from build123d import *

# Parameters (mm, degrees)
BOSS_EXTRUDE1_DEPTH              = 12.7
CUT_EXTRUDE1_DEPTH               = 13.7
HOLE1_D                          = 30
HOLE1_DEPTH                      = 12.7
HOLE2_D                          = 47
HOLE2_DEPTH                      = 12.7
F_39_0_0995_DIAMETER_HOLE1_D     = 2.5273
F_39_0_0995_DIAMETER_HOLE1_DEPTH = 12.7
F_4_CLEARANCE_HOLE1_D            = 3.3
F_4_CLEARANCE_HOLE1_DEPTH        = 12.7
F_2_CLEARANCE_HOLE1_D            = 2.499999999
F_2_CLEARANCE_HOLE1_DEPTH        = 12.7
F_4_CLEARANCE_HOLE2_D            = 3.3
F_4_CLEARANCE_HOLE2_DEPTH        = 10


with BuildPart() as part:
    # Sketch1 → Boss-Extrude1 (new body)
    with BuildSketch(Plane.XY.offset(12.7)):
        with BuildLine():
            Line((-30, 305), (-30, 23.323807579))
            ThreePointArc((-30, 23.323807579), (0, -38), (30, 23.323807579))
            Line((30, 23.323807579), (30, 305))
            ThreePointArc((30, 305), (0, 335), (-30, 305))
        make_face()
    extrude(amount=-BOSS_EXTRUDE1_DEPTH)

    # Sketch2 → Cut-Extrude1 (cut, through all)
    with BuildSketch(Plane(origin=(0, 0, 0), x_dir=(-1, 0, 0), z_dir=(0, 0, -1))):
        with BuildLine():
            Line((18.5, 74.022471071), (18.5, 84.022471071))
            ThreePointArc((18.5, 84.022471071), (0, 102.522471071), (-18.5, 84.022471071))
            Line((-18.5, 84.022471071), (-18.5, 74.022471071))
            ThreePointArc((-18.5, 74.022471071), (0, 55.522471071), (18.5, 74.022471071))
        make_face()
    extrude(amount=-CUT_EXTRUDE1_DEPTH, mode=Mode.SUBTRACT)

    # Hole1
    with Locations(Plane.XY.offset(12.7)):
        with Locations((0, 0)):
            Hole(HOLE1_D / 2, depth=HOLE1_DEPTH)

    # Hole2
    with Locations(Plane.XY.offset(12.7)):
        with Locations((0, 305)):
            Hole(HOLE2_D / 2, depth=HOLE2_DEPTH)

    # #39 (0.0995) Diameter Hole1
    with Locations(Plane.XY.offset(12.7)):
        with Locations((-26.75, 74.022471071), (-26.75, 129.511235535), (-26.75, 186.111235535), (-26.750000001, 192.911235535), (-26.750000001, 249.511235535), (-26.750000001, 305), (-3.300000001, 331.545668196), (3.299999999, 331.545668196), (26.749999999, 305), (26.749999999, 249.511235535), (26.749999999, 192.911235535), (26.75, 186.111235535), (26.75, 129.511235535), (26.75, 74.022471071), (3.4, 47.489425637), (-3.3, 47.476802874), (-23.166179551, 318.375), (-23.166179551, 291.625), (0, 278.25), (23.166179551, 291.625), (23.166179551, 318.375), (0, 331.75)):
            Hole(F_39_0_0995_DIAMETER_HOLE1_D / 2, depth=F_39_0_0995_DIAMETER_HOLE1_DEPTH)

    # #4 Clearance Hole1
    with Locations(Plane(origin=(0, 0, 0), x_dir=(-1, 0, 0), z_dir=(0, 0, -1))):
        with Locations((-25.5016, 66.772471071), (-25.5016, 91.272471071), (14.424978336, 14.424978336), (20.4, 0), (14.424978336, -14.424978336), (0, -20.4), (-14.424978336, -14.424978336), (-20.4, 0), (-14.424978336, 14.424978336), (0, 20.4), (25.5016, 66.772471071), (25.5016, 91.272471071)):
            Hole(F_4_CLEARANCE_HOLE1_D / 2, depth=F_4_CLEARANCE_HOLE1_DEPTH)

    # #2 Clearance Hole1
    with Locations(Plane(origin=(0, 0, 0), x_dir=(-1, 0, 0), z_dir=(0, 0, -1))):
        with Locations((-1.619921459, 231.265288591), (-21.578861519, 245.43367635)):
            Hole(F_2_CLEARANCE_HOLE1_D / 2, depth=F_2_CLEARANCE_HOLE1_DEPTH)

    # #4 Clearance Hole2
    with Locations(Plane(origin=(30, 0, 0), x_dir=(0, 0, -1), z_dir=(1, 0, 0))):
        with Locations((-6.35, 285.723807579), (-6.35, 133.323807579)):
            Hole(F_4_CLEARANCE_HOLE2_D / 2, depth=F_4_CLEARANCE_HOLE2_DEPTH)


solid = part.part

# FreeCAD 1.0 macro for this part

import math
import FreeCAD as App
import Part
import Sketcher

V = App.Vector

doc = App.newDocument("Part")
body = doc.addObject("PartDesign::Body", "Body")

# Sketch on XY plane
sketch1 = doc.addObject("Sketcher::SketchObject", "Sketch")
body.addObject(sketch1)
sketch1.AttachmentSupport = (doc.XY_Plane, [""])
sketch1.MapMode = "FlatFace"
sketch1.AttachmentOffset = App.Placement(V(0, 0, 12.7), App.Rotation())
sketch1.addGeometry(Part.LineSegment(V(-30, 305, 0), V(-30, 23, 0)), False)
sketch1.addGeometry(Part.ArcOfCircle(Part.Circle(V(0, 0, 0), V(0, 0, 1), 38), math.radians(142), math.radians(398)), False)
sketch1.addGeometry(Part.LineSegment(V(30, 23, 0), V(30, 305, 0)), False)
sketch1.addGeometry(Part.ArcOfCircle(Part.Circle(V(0, 305, 0), V(0, 0, 1), 30), math.radians(0), math.radians(180)), False)
sketch1.addConstraint(Sketcher.Constraint("Coincident", 0, 2, 1, 1))
sketch1.addConstraint(Sketcher.Constraint("Coincident", 1, 2, 2, 1))
sketch1.addConstraint(Sketcher.Constraint("Tangent", 2, 2, 3, 1))
sketch1.addConstraint(Sketcher.Constraint("Tangent", 3, 2, 0, 1))
sketch1.addConstraint(Sketcher.Constraint("Vertical", 0))
sketch1.addConstraint(Sketcher.Constraint("Vertical", 2))
sketch1.addConstraint(Sketcher.Constraint("Coincident", 1, 3, -1, 1))
sketch1.addConstraint(Sketcher.Constraint("PointOnObject", 3, 3, -2))
sketch1.addConstraint(Sketcher.Constraint("Radius", 1, 38.0))
sketch1.addConstraint(Sketcher.Constraint("Radius", 3, 30.0))
sketch1.addConstraint(Sketcher.Constraint("DistanceY", -1, 1, 3, 3, 305.0))
pad1 = doc.addObject("PartDesign::Pad", "Pad")
body.addObject(pad1)
pad1.Profile = sketch1
pad1.Length = 12.7
pad1.Reversed = True

# Sketch on XY plane
sketch2 = doc.addObject("Sketcher::SketchObject", "Sketch001")
body.addObject(sketch2)
sketch2.AttachmentSupport = (doc.XY_Plane, [""])
sketch2.MapMode = "FlatFace"
sketch2.addGeometry(Part.LineSegment(V(-18, 74, 0), V(-18, 84, 0)), False)
sketch2.addGeometry(Part.ArcOfCircle(Part.Circle(V(0, 84, 0), V(0, 0, 1), 18), math.radians(0), math.radians(180)), False)
sketch2.addGeometry(Part.LineSegment(V(18, 84, 0), V(18, 74, 0)), False)
sketch2.addGeometry(Part.ArcOfCircle(Part.Circle(V(0, 74, 0), V(0, 0, 1), 18), math.radians(180), math.radians(360)), False)
sketch2.addConstraint(Sketcher.Constraint("Tangent", 0, 2, 1, 2))
sketch2.addConstraint(Sketcher.Constraint("Tangent", 1, 1, 2, 1))
sketch2.addConstraint(Sketcher.Constraint("Tangent", 2, 2, 3, 2))
sketch2.addConstraint(Sketcher.Constraint("Tangent", 3, 1, 0, 1))
sketch2.addConstraint(Sketcher.Constraint("Vertical", 0))
sketch2.addConstraint(Sketcher.Constraint("Vertical", 2))
sketch2.addConstraint(Sketcher.Constraint("PointOnObject", 1, 3, -2))
sketch2.addConstraint(Sketcher.Constraint("Radius", 1, 18.5))
sketch2.addConstraint(Sketcher.Constraint("DistanceY", 0, 1, 0, 2, 10.0))
sketch2.addConstraint(Sketcher.Constraint("DistanceY", -1, 1, 1, 3, 84.022471))
pocket1 = doc.addObject("PartDesign::Pocket", "Pocket")
body.addObject(pocket1)
pocket1.Profile = sketch2
pocket1.Type = "ThroughAll"
pocket1.Reversed = True

# Sketch on XY plane
sketch3 = doc.addObject("Sketcher::SketchObject", "Sketch002")
body.addObject(sketch3)
sketch3.AttachmentSupport = (doc.XY_Plane, [""])
sketch3.MapMode = "FlatFace"
sketch3.AttachmentOffset = App.Placement(V(0, 0, 12.7), App.Rotation())
sketch3.addGeometry(Part.Circle(V(0, 0, 0), V(0, 0, 1), 15), False)
sketch3.addConstraint(Sketcher.Constraint("Coincident", 0, 3, -1, 1))
sketch3.addConstraint(Sketcher.Constraint("Diameter", 0, 30.0))
doc.recompute()
hole = doc.addObject("PartDesign::Hole", "Hole")
body.addObject(hole)
hole.Profile = sketch3
hole.ThreadType = "None"
hole.Diameter = 30
hole.DepthType = "Dimension"
hole.Depth = 12.7
hole.DrillPoint = "Flat"

# Sketch on XY plane
sketch4 = doc.addObject("Sketcher::SketchObject", "Sketch003")
body.addObject(sketch4)
sketch4.AttachmentSupport = (doc.XY_Plane, [""])
sketch4.MapMode = "FlatFace"
sketch4.AttachmentOffset = App.Placement(V(0, 0, 12.7), App.Rotation())
sketch4.addGeometry(Part.Circle(V(0, 305, 0), V(0, 0, 1), 24), False)
sketch4.addConstraint(Sketcher.Constraint("PointOnObject", 0, 3, -2))
sketch4.addConstraint(Sketcher.Constraint("Diameter", 0, 47.0))
sketch4.addConstraint(Sketcher.Constraint("DistanceY", -1, 1, 0, 3, 305.0))
doc.recompute()
hole2 = doc.addObject("PartDesign::Hole", "Hole001")
body.addObject(hole2)
hole2.Profile = sketch4
hole2.ThreadType = "None"
hole2.Diameter = 47
hole2.DepthType = "Dimension"
hole2.Depth = 12.7
hole2.DrillPoint = "Flat"

# Sketch on XY plane
sketch5 = doc.addObject("Sketcher::SketchObject", "Sketch004")
body.addObject(sketch5)
sketch5.AttachmentSupport = (doc.XY_Plane, [""])
sketch5.MapMode = "FlatFace"
sketch5.AttachmentOffset = App.Placement(V(0, 0, 12.7), App.Rotation())
sketch5.addGeometry(Part.Circle(V(-26.8, 74, 0), V(0, 0, 1), 1.3), False)
sketch5.addGeometry(Part.Circle(V(-26.8, 129.5, 0), V(0, 0, 1), 1.3), False)
sketch5.addGeometry(Part.Circle(V(-26.8, 186.1, 0), V(0, 0, 1), 1.3), False)
sketch5.addGeometry(Part.Circle(V(-26.8, 192.9, 0), V(0, 0, 1), 1.3), False)
sketch5.addGeometry(Part.Circle(V(-26.8, 249.5, 0), V(0, 0, 1), 1.3), False)
sketch5.addGeometry(Part.Circle(V(-26.8, 305, 0), V(0, 0, 1), 1.3), False)
sketch5.addGeometry(Part.Circle(V(-3.3, 331.5, 0), V(0, 0, 1), 1.3), False)
sketch5.addGeometry(Part.Circle(V(3.3, 331.5, 0), V(0, 0, 1), 1.3), False)
sketch5.addGeometry(Part.Circle(V(26.7, 305, 0), V(0, 0, 1), 1.3), False)
sketch5.addGeometry(Part.Circle(V(26.7, 249.5, 0), V(0, 0, 1), 1.3), False)
sketch5.addGeometry(Part.Circle(V(26.7, 192.9, 0), V(0, 0, 1), 1.3), False)
sketch5.addGeometry(Part.Circle(V(26.8, 186.1, 0), V(0, 0, 1), 1.3), False)
sketch5.addGeometry(Part.Circle(V(26.8, 129.5, 0), V(0, 0, 1), 1.3), False)
sketch5.addGeometry(Part.Circle(V(26.8, 74, 0), V(0, 0, 1), 1.3), False)
sketch5.addGeometry(Part.Circle(V(3.4, 47.5, 0), V(0, 0, 1), 1.3), False)
sketch5.addGeometry(Part.Circle(V(-3.3, 47.5, 0), V(0, 0, 1), 1.3), False)
sketch5.addGeometry(Part.Circle(V(-23.2, 318.4, 0), V(0, 0, 1), 1.3), False)
sketch5.addGeometry(Part.Circle(V(-23.2, 291.6, 0), V(0, 0, 1), 1.3), False)
sketch5.addGeometry(Part.Circle(V(0, 278.2, 0), V(0, 0, 1), 1.3), False)
sketch5.addGeometry(Part.Circle(V(23.2, 291.6, 0), V(0, 0, 1), 1.3), False)
sketch5.addGeometry(Part.Circle(V(23.2, 318.4, 0), V(0, 0, 1), 1.3), False)
sketch5.addGeometry(Part.Circle(V(0, 331.8, 0), V(0, 0, 1), 1.3), False)
sketch5.addConstraint(Sketcher.Constraint("Equal", 0, 1))
sketch5.addConstraint(Sketcher.Constraint("Equal", 1, 2))
sketch5.addConstraint(Sketcher.Constraint("Equal", 2, 3))
sketch5.addConstraint(Sketcher.Constraint("Equal", 3, 4))
sketch5.addConstraint(Sketcher.Constraint("Equal", 4, 5))
sketch5.addConstraint(Sketcher.Constraint("Equal", 5, 6))
sketch5.addConstraint(Sketcher.Constraint("Equal", 6, 7))
sketch5.addConstraint(Sketcher.Constraint("Equal", 7, 8))
sketch5.addConstraint(Sketcher.Constraint("Equal", 8, 9))
sketch5.addConstraint(Sketcher.Constraint("Equal", 9, 10))
sketch5.addConstraint(Sketcher.Constraint("Equal", 10, 11))
sketch5.addConstraint(Sketcher.Constraint("Equal", 11, 12))
sketch5.addConstraint(Sketcher.Constraint("Equal", 12, 13))
sketch5.addConstraint(Sketcher.Constraint("Equal", 13, 14))
sketch5.addConstraint(Sketcher.Constraint("Equal", 14, 15))
sketch5.addConstraint(Sketcher.Constraint("Equal", 15, 16))
sketch5.addConstraint(Sketcher.Constraint("Equal", 16, 17))
sketch5.addConstraint(Sketcher.Constraint("Equal", 17, 18))
sketch5.addConstraint(Sketcher.Constraint("Equal", 18, 19))
sketch5.addConstraint(Sketcher.Constraint("Equal", 19, 20))
sketch5.addConstraint(Sketcher.Constraint("Equal", 20, 21))
sketch5.addConstraint(Sketcher.Constraint("Symmetric", 6, 3, 7, 3, -2))
sketch5.addConstraint(Sketcher.Constraint("Symmetric", 5, 3, 8, 3, -2))
sketch5.addConstraint(Sketcher.Constraint("Symmetric", 4, 3, 9, 3, -2))
sketch5.addConstraint(Sketcher.Constraint("Symmetric", 3, 3, 10, 3, -2))
sketch5.addConstraint(Sketcher.Constraint("Symmetric", 2, 3, 11, 3, -2))
sketch5.addConstraint(Sketcher.Constraint("Symmetric", 1, 3, 12, 3, -2))
sketch5.addConstraint(Sketcher.Constraint("Symmetric", 0, 3, 13, 3, -2))
sketch5.addConstraint(Sketcher.Constraint("Symmetric", 17, 3, 19, 3, -2))
sketch5.addConstraint(Sketcher.Constraint("Symmetric", 16, 3, 20, 3, -2))
sketch5.addConstraint(Sketcher.Constraint("PointOnObject", 18, 3, -2))
sketch5.addConstraint(Sketcher.Constraint("PointOnObject", 21, 3, -2))
sketch5.addConstraint(Sketcher.Constraint("Vertical", 0, 3, 1, 3))
sketch5.addConstraint(Sketcher.Constraint("Vertical", 1, 3, 2, 3))
sketch5.addConstraint(Sketcher.Constraint("Vertical", 2, 3, 3, 3))
sketch5.addConstraint(Sketcher.Constraint("Vertical", 3, 3, 4, 3))
sketch5.addConstraint(Sketcher.Constraint("Vertical", 4, 3, 5, 3))
sketch5.addConstraint(Sketcher.Constraint("Vertical", 6, 3, 15, 3))
sketch5.addConstraint(Sketcher.Constraint("Vertical", 16, 3, 17, 3))
sketch5.addConstraint(Sketcher.Constraint("DistanceY", -1, 1, 5, 3, 305.0))
sketch5.addConstraint(Sketcher.Constraint("DistanceY", 1, 3, 4, 3, 120.0))
sketch5.addConstraint(Sketcher.Constraint("Diameter", 0, 2.5273))
sketch5.addConstraint(Sketcher.Constraint("DistanceX", 6, 3, -1, 1, 3.3))
sketch5.addConstraint(Sketcher.Constraint("DistanceX", -1, 1, 14, 3, 3.4))
sketch5.addConstraint(Sketcher.Constraint("DistanceY", 1, 3, 2, 3, 56.6))
sketch5.addConstraint(Sketcher.Constraint("DistanceY", 2, 3, 3, 3, 6.8))
sketch5.addConstraint(Sketcher.Constraint("DistanceX", 5, 3, 8, 3, 53.5))
sketch5.addConstraint(Sketcher.Constraint("DistanceY", -1, 1, 18, 3, 278.25))
sketch5.addConstraint(Sketcher.Constraint("DistanceY", -1, 1, 21, 3, 331.75))
sketch5.addConstraint(Sketcher.Constraint("DistanceY", 17, 3, 16, 3, 26.75))
sketch5.addConstraint(Sketcher.Constraint("DistanceY", -1, 1, 16, 3, 318.375))
sketch5.addConstraint(Sketcher.Constraint("DistanceY", -1, 1, 0, 3, 74.022471))
sketch5.addConstraint(Sketcher.Constraint("DistanceY", -1, 1, 6, 3, 331.545668))
sketch5.addConstraint(Sketcher.Constraint("DistanceX", 16, 3, -1, 1, 23.16618))
sketch5.addConstraint(Sketcher.Constraint("DistanceY", 14, 3, 12, 3, 82.02181))
sketch5.addConstraint(Sketcher.Constraint("DistanceY", 15, 3, 0, 3, 26.545668))
sketch5.addConstraint(Sketcher.Constraint("DistanceY", -1, 1, 1, 3, 129.511236))
doc.recompute()
hole3 = doc.addObject("PartDesign::Hole", "Hole002")
body.addObject(hole3)
hole3.Profile = sketch5
hole3.ThreadType = "None"
hole3.Diameter = 2.5273
hole3.DepthType = "Dimension"
hole3.Depth = 12.7
hole3.DrillPoint = "Flat"

# Sketch on XY plane
sketch6 = doc.addObject("Sketcher::SketchObject", "Sketch005")
body.addObject(sketch6)
sketch6.AttachmentSupport = (doc.XY_Plane, [""])
sketch6.MapMode = "FlatFace"
sketch6.addGeometry(Part.Circle(V(25.5, 66.8, 0), V(0, 0, 1), 1.6), False)
sketch6.addGeometry(Part.Circle(V(25.5, 91.3, 0), V(0, 0, 1), 1.6), False)
sketch6.addGeometry(Part.Circle(V(-14.4, 14.4, 0), V(0, 0, 1), 1.6), False)
sketch6.addGeometry(Part.Circle(V(-20.4, 0, 0), V(0, 0, 1), 1.6), False)
sketch6.addGeometry(Part.Circle(V(-14.4, -14.4, 0), V(0, 0, 1), 1.6), False)
sketch6.addGeometry(Part.Circle(V(0, -20.4, 0), V(0, 0, 1), 1.6), False)
sketch6.addGeometry(Part.Circle(V(14.4, -14.4, 0), V(0, 0, 1), 1.6), False)
sketch6.addGeometry(Part.Circle(V(20.4, 0, 0), V(0, 0, 1), 1.6), False)
sketch6.addGeometry(Part.Circle(V(14.4, 14.4, 0), V(0, 0, 1), 1.6), False)
sketch6.addGeometry(Part.Circle(V(0, 20.4, 0), V(0, 0, 1), 1.6), False)
sketch6.addGeometry(Part.Circle(V(-25.5, 66.8, 0), V(0, 0, 1), 1.6), False)
sketch6.addGeometry(Part.Circle(V(-25.5, 91.3, 0), V(0, 0, 1), 1.6), False)
sketch6.addConstraint(Sketcher.Constraint("Equal", 0, 1))
sketch6.addConstraint(Sketcher.Constraint("Equal", 1, 2))
sketch6.addConstraint(Sketcher.Constraint("Equal", 2, 3))
sketch6.addConstraint(Sketcher.Constraint("Equal", 3, 4))
sketch6.addConstraint(Sketcher.Constraint("Equal", 4, 5))
sketch6.addConstraint(Sketcher.Constraint("Equal", 5, 6))
sketch6.addConstraint(Sketcher.Constraint("Equal", 6, 7))
sketch6.addConstraint(Sketcher.Constraint("Equal", 7, 8))
sketch6.addConstraint(Sketcher.Constraint("Equal", 8, 9))
sketch6.addConstraint(Sketcher.Constraint("Equal", 9, 10))
sketch6.addConstraint(Sketcher.Constraint("Equal", 10, 11))
sketch6.addConstraint(Sketcher.Constraint("Symmetric", 2, 3, 6, 3, -1, 1))
sketch6.addConstraint(Sketcher.Constraint("Symmetric", 3, 3, 7, 3, -1, 1))
sketch6.addConstraint(Sketcher.Constraint("Symmetric", 4, 3, 8, 3, -1, 1))
sketch6.addConstraint(Sketcher.Constraint("Symmetric", 5, 3, 9, 3, -1, 1))
sketch6.addConstraint(Sketcher.Constraint("Symmetric", 4, 3, 6, 3, -2))
sketch6.addConstraint(Sketcher.Constraint("Symmetric", 0, 3, 10, 3, -2))
sketch6.addConstraint(Sketcher.Constraint("Symmetric", 1, 3, 11, 3, -2))
sketch6.addConstraint(Sketcher.Constraint("PointOnObject", 3, 3, -1))
sketch6.addConstraint(Sketcher.Constraint("PointOnObject", 5, 3, -2))
sketch6.addConstraint(Sketcher.Constraint("Vertical", 0, 3, 1, 3))
sketch6.addConstraint(Sketcher.Constraint("Diameter", 0, 3.3))
sketch6.addConstraint(Sketcher.Constraint("DistanceX", 3, 3, -1, 1, 20.4))
sketch6.addConstraint(Sketcher.Constraint("DistanceY", 5, 3, -1, 1, 20.4))
sketch6.addConstraint(Sketcher.Constraint("DistanceY", 0, 3, 1, 3, 24.5))
sketch6.addConstraint(Sketcher.Constraint("DistanceX", -1, 1, 0, 3, 25.5016))
sketch6.addConstraint(Sketcher.Constraint("DistanceY", -1, 1, 0, 3, 66.772471))
sketch6.addConstraint(Sketcher.Constraint("DistanceX", 2, 3, -1, 1, 14.424978))
sketch6.addConstraint(Sketcher.Constraint("DistanceY", -1, 1, 2, 3, 14.424978))
doc.recompute()
hole4 = doc.addObject("PartDesign::Hole", "Hole003")
body.addObject(hole4)
hole4.Profile = sketch6
hole4.ThreadType = "None"
hole4.Diameter = 3.3
hole4.DepthType = "Dimension"
hole4.Depth = 12.7
hole4.DrillPoint = "Flat"
hole4.Reversed = True

# Sketch on XY plane
sketch7 = doc.addObject("Sketcher::SketchObject", "Sketch006")
body.addObject(sketch7)
sketch7.AttachmentSupport = (doc.XY_Plane, [""])
sketch7.MapMode = "FlatFace"
sketch7.addGeometry(Part.Circle(V(1.6, 231.3, 0), V(0, 0, 1), 1.2), False)
sketch7.addGeometry(Part.Circle(V(21.6, 245.4, 0), V(0, 0, 1), 1.2), False)
sketch7.addConstraint(Sketcher.Constraint("Equal", 0, 1))
sketch7.addConstraint(Sketcher.Constraint("Diameter", 0, 2.5))
sketch7.addConstraint(Sketcher.Constraint("DistanceX", -1, 1, 0, 3, 1.619921))
sketch7.addConstraint(Sketcher.Constraint("DistanceY", -1, 1, 0, 3, 231.265289))
sketch7.addConstraint(Sketcher.Constraint("DistanceX", -1, 1, 1, 3, 21.578862))
sketch7.addConstraint(Sketcher.Constraint("DistanceY", -1, 1, 1, 3, 245.433676))
doc.recompute()
hole5 = doc.addObject("PartDesign::Hole", "Hole004")
body.addObject(hole5)
hole5.Profile = sketch7
hole5.ThreadType = "None"
hole5.Diameter = 2.5
hole5.DepthType = "Dimension"
hole5.Depth = 12.7
hole5.DrillPoint = "Flat"
hole5.Reversed = True

# Sketch on YZ plane
sketch8 = doc.addObject("Sketcher::SketchObject", "Sketch007")
body.addObject(sketch8)
sketch8.AttachmentSupport = (doc.YZ_Plane, [""])
sketch8.MapMode = "FlatFace"
sketch8.AttachmentOffset = App.Placement(V(0, 0, 30), App.Rotation())
sketch8.addGeometry(Part.Circle(V(285.7, 6.3, 0), V(0, 0, 1), 1.6), False)
sketch8.addGeometry(Part.Circle(V(133.3, 6.3, 0), V(0, 0, 1), 1.6), False)
sketch8.addConstraint(Sketcher.Constraint("Equal", 0, 1))
sketch8.addConstraint(Sketcher.Constraint("Horizontal", 0, 3, 1, 3))
sketch8.addConstraint(Sketcher.Constraint("Diameter", 0, 3.3))
sketch8.addConstraint(Sketcher.Constraint("DistanceX", 1, 3, 0, 3, 152.4))
sketch8.addConstraint(Sketcher.Constraint("DistanceY", -1, 1, 0, 3, 6.35))
sketch8.addConstraint(Sketcher.Constraint("DistanceX", -1, 1, 0, 3, 285.723808))
doc.recompute()
hole6 = doc.addObject("PartDesign::Hole", "Hole005")
body.addObject(hole6)
hole6.Profile = sketch8
hole6.ThreadType = "None"
hole6.Diameter = 3.3
hole6.DepthType = "Dimension"
hole6.Depth = 10
hole6.DrillPoint = "Flat"

doc.recompute()
